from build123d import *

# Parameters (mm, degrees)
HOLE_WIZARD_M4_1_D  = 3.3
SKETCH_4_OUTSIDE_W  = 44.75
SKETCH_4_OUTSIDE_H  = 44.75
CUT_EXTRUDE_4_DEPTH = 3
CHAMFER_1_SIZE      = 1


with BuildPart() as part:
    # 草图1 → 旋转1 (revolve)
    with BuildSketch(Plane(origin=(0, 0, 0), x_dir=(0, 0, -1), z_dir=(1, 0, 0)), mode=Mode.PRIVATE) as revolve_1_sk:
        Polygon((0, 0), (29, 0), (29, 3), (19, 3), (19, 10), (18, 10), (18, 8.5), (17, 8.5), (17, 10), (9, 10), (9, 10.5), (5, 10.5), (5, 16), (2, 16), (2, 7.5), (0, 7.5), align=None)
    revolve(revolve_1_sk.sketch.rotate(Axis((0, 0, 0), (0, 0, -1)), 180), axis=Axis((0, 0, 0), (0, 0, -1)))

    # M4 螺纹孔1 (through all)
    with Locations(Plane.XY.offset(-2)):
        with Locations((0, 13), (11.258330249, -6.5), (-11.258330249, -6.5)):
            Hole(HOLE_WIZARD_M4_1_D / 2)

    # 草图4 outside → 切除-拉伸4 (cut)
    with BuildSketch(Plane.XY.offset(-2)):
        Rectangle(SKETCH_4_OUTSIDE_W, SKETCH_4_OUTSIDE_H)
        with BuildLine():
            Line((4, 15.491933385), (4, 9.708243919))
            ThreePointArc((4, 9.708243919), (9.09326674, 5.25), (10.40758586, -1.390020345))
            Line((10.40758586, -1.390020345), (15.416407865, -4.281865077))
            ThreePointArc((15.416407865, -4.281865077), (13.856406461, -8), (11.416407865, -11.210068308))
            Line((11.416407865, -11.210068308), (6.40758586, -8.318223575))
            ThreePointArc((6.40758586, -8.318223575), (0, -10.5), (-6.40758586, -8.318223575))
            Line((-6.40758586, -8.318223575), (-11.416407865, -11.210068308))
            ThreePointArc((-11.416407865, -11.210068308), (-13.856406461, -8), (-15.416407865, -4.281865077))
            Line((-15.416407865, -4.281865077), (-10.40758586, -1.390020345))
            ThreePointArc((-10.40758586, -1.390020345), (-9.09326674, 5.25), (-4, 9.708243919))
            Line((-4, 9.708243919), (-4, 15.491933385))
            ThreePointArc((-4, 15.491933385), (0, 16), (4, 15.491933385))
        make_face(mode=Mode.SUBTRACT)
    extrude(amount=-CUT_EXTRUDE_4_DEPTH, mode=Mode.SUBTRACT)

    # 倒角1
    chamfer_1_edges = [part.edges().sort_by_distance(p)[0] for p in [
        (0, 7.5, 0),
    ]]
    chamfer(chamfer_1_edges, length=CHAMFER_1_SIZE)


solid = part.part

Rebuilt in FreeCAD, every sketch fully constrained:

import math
import FreeCAD as App
import Part
import Sketcher
from FreeCAD import Vector
Q = App.Units.Quantity


def edges_at(feature, points):
    """Names of the edges that pass closest to the given points."""
    edges = feature.Shape.Edges
    near = lambda p: min(range(len(edges)), key=lambda i: edges[i].distToShape(Part.Vertex(*p))[0])
    return sorted({f"Edge{near(p) + 1}" for p in points})

doc = App.newDocument("Part")
body = doc.addObject("PartDesign::Body", "Body")

# Sketch on YZ plane
sketch1 = doc.addObject("Sketcher::SketchObject", "Sketch")
body.addObject(sketch1)
sketch1.AttachmentSupport = (doc.YZ_Plane, [""])
sketch1.MapMode = "FlatFace"
sketch1.addGeometry(Part.LineSegment(Vector(0, 0, 0), Vector(0, -29, 0)), False)
sketch1.addGeometry(Part.LineSegment(Vector(0, -29, 0), Vector(3, -29, 0)), False)
sketch1.addGeometry(Part.LineSegment(Vector(3, -29, 0), Vector(3, -19, 0)), False)
sketch1.addGeometry(Part.LineSegment(Vector(3, -19, 0), Vector(10, -19, 0)), False)
sketch1.addGeometry(Part.LineSegment(Vector(10, -19, 0), Vector(10, -18, 0)), False)
sketch1.addGeometry(Part.LineSegment(Vector(10, -18, 0), Vector(8.5, -18, 0)), False)
sketch1.addGeometry(Part.LineSegment(Vector(8.5, -18, 0), Vector(8.5, -17, 0)), False)
sketch1.addGeometry(Part.LineSegment(Vector(8.5, -17, 0), Vector(10, -17, 0)), False)
sketch1.addGeometry(Part.LineSegment(Vector(10, -17, 0), Vector(10, -9, 0)), False)
sketch1.addGeometry(Part.LineSegment(Vector(10, -9, 0), Vector(10.5, -9, 0)), False)
sketch1.addGeometry(Part.LineSegment(Vector(10.5, -9, 0), Vector(10.5, -5, 0)), False)
sketch1.addGeometry(Part.LineSegment(Vector(10.5, -5, 0), Vector(16, -5, 0)), False)
sketch1.addGeometry(Part.LineSegment(Vector(16, -5, 0), Vector(16, -2, 0)), False)
sketch1.addGeometry(Part.LineSegment(Vector(16, -2, 0), Vector(7.5, -2, 0)), False)
sketch1.addGeometry(Part.LineSegment(Vector(7.5, -2, 0), Vector(7.5, 0, 0)), False)
sketch1.addGeometry(Part.LineSegment(Vector(7.5, 0, 0), Vector(0, 0, 0)), False)
sketch1.addConstraint(Sketcher.Constraint("Coincident", 0, 2, 1, 1))
sketch1.addConstraint(Sketcher.Constraint("Coincident", 1, 2, 2, 1))
sketch1.addConstraint(Sketcher.Constraint("Coincident", 2, 2, 3, 1))
sketch1.addConstraint(Sketcher.Constraint("Coincident", 3, 2, 4, 1))
sketch1.addConstraint(Sketcher.Constraint("Coincident", 4, 2, 5, 1))
sketch1.addConstraint(Sketcher.Constraint("Coincident", 5, 2, 6, 1))
sketch1.addConstraint(Sketcher.Constraint("Coincident", 6, 2, 7, 1))
sketch1.addConstraint(Sketcher.Constraint("Coincident", 7, 2, 8, 1))
sketch1.addConstraint(Sketcher.Constraint("Coincident", 8, 2, 9, 1))
sketch1.addConstraint(Sketcher.Constraint("Coincident", 9, 2, 10, 1))
sketch1.addConstraint(Sketcher.Constraint("Coincident", 10, 2, 11, 1))
sketch1.addConstraint(Sketcher.Constraint("Coincident", 11, 2, 12, 1))
sketch1.addConstraint(Sketcher.Constraint("Coincident", 12, 2, 13, 1))
sketch1.addConstraint(Sketcher.Constraint("Coincident", 13, 2, 14, 1))
sketch1.addConstraint(Sketcher.Constraint("Coincident", 14, 2, 15, 1))
sketch1.addConstraint(Sketcher.Constraint("Coincident", 15, 2, 0, 1))
sketch1.addConstraint(Sketcher.Constraint("Vertical", 0))
sketch1.addConstraint(Sketcher.Constraint("Horizontal", 1))
sketch1.addConstraint(Sketcher.Constraint("Vertical", 2))
sketch1.addConstraint(Sketcher.Constraint("Horizontal", 3))
sketch1.addConstraint(Sketcher.Constraint("Vertical", 4))
sketch1.addConstraint(Sketcher.Constraint("Horizontal", 5))
sketch1.addConstraint(Sketcher.Constraint("Vertical", 6))
sketch1.addConstraint(Sketcher.Constraint("Horizontal", 7))
sketch1.addConstraint(Sketcher.Constraint("Vertical", 8))
sketch1.addConstraint(Sketcher.Constraint("Horizontal", 9))
sketch1.addConstraint(Sketcher.Constraint("Vertical", 10))
sketch1.addConstraint(Sketcher.Constraint("Horizontal", 11))
sketch1.addConstraint(Sketcher.Constraint("Vertical", 12))
sketch1.addConstraint(Sketcher.Constraint("Horizontal", 13))
sketch1.addConstraint(Sketcher.Constraint("Vertical", 14))
sketch1.addConstraint(Sketcher.Constraint("Horizontal", 15))
sketch1.addConstraint(Sketcher.Constraint("Coincident", 15, 2, -1, 1))
sketch1.addConstraint(Sketcher.Constraint("Vertical", 4, 2, 7, 2))
sketch1.addConstraint(Sketcher.Constraint("Equal", 4, 6))
sketch1.addConstraint(Sketcher.Constraint("Equal", 1, 12))
sketch1.addConstraint(Sketcher.Constraint("DistanceX", 1, 1, 1, 2, 3.0))
sketch1.addConstraint(Sketcher.Constraint("DistanceX", 3, 1, 3, 2, 7.0))
sketch1.addConstraint(Sketcher.Constraint("DistanceY", 0, 2, 0, 1, 29.0))
sketch1.addConstraint(Sketcher.Constraint("DistanceY", 2, 1, 2, 2, 10.0))
sketch1.addConstraint(Sketcher.Constraint("DistanceY", 4, 1, 4, 2, 1.0))
sketch1.addConstraint(Sketcher.Constraint("DistanceY", 8, 1, 8, 2, 8.0))
sketch1.addConstraint(Sketcher.Constraint("DistanceY", 10, 1, 10, 2, 4.0))
sketch1.addConstraint(Sketcher.Constraint("DistanceX", 5, 2, 5, 1, 1.5))
sketch1.addConstraint(Sketcher.Constraint("DistanceX", 9, 1, 9, 2, 0.5))
sketch1.addConstraint(Sketcher.Constraint("DistanceX", 11, 1, 11, 2, 5.5))
sketch1.addConstraint(Sketcher.Constraint("DistanceX", 13, 2, 13, 1, 8.5))
revolution = doc.addObject("PartDesign::Revolution", "Revolution")
body.addObject(revolution)
revolution.Profile = sketch1
revolution.ReferenceAxis = (sketch1, ["V_Axis"])
revolution.Angle = 360

# Sketch on XY plane
sketch2 = doc.addObject("Sketcher::SketchObject", "Sketch001")
body.addObject(sketch2)
sketch2.AttachmentSupport = (doc.XY_Plane, [""])
sketch2.MapMode = "FlatFace"
sketch2.AttachmentOffset = App.Placement(Vector(0, 0, -2), App.Rotation())
sketch2.addGeometry(Part.Circle(Vector(0, 13, 0), Vector(0, 0, 1), 1.6), False)
sketch2.addGeometry(Part.Circle(Vector(11.3, -6.5, 0), Vector(0, 0, 1), 1.6), False)
sketch2.addGeometry(Part.Circle(Vector(-11.3, -6.5, 0), Vector(0, 0, 1), 1.6), False)
sketch2.addConstraint(Sketcher.Constraint("Equal", 0, 1))
sketch2.addConstraint(Sketcher.Constraint("Equal", 1, 2))
sketch2.addConstraint(Sketcher.Constraint("Symmetric", 1, 3, 2, 3, -2))
sketch2.addConstraint(Sketcher.Constraint("PointOnObject", 0, 3, -2))
sketch2.addConstraint(Sketcher.Constraint("Diameter", 0, 3.3))
sketch2.addConstraint(Sketcher.Constraint("DistanceY", -1, 1, 0, 3, 13.0))
sketch2.addConstraint(Sketcher.Constraint("DistanceY", 1, 3, -1, 1, 6.5))
sketch2.addConstraint(Sketcher.Constraint("DistanceX", -1, 1, 1, 3, 11.25833))
doc.recompute()
hole = doc.addObject("PartDesign::Hole", "Hole")
body.addObject(hole)
hole.Profile = sketch2
hole.ThreadType = "None"
hole.Diameter = 3.3
hole.DepthType = "ThroughAll"

# Sketch on XY plane
sketch3 = doc.addObject("Sketcher::SketchObject", "Sketch002")
body.addObject(sketch3)
sketch3.AttachmentSupport = (doc.XY_Plane, [""])
sketch3.MapMode = "FlatFace"
sketch3.AttachmentOffset = App.Placement(Vector(0, 0, -2), App.Rotation())
sketch3.addGeometry(Part.LineSegment(Vector(-22, 22, 0), Vector(-22, -22, 0)), False)
sketch3.addGeometry(Part.LineSegment(Vector(-22, -22, 0), Vector(22, -22, 0)), False)
sketch3.addGeometry(Part.LineSegment(Vector(22, -22, 0), Vector(22, 22, 0)), False)
sketch3.addGeometry(Part.LineSegment(Vector(22, 22, 0), Vector(-22, 22, 0)), False)
sketch3.addGeometry(Part.ArcOfCircle(Part.Circle(Vector(0, 0, 0), Vector(0, 0, 1), 16), math.radians(76), math.radians(104)), False)
sketch3.addGeometry(Part.LineSegment(Vector(4, 15, 0), Vector(4, 10, 0)), False)
sketch3.addGeometry(Part.ArcOfCircle(Part.Circle(Vector(0, 0, 0), Vector(0, 0, 1), 10), math.radians(-8), math.radians(68)), False)
sketch3.addGeometry(Part.LineSegment(Vector(10, -1, 0), Vector(15, -4, 0)), False)
sketch3.addGeometry(Part.ArcOfCircle(Part.Circle(Vector(0, 0, 0), Vector(0, 0, 1), 16), math.radians(-44), math.radians(-16)), False)
sketch3.addGeometry(Part.LineSegment(Vector(11, -11, 0), Vector(6, -8, 0)), False)
sketch3.addGeometry(Part.ArcOfCircle(Part.Circle(Vector(0, 0, 0), Vector(0, 0, 1), 10), math.radians(-128), math.radians(-52)), False)
sketch3.addGeometry(Part.LineSegment(Vector(-6, -8, 0), Vector(-11, -11, 0)), False)
sketch3.addGeometry(Part.ArcOfCircle(Part.Circle(Vector(0, 0, 0), Vector(0, 0, 1), 16), math.radians(-164), math.radians(-136)), False)
sketch3.addGeometry(Part.LineSegment(Vector(-15, -4, 0), Vector(-10, -1, 0)), False)
sketch3.addGeometry(Part.ArcOfCircle(Part.Circle(Vector(0, 0, 0), Vector(0, 0, 1), 10), math.radians(112), math.radians(188)), False)
sketch3.addGeometry(Part.LineSegment(Vector(-4, 10, 0), Vector(-4, 15, 0)), False)
sketch3.addConstraint(Sketcher.Constraint("Coincident", 0, 2, 1, 1))
sketch3.addConstraint(Sketcher.Constraint("Coincident", 1, 2, 2, 1))
sketch3.addConstraint(Sketcher.Constraint("Coincident", 2, 2, 3, 1))
sketch3.addConstraint(Sketcher.Constraint("Coincident", 3, 2, 0, 1))
sketch3.addConstraint(Sketcher.Constraint("Coincident", 4, 1, 5, 1))
sketch3.addConstraint(Sketcher.Constraint("Coincident", 5, 2, 6, 2))
sketch3.addConstraint(Sketcher.Constraint("Coincident", 6, 1, 7, 1))
sketch3.addConstraint(Sketcher.Constraint("Coincident", 7, 2, 8, 2))
sketch3.addConstraint(Sketcher.Constraint("Coincident", 8, 1, 9, 1))
sketch3.addConstraint(Sketcher.Constraint("Coincident", 9, 2, 10, 2))
sketch3.addConstraint(Sketcher.Constraint("Coincident", 10, 1, 11, 1))
sketch3.addConstraint(Sketcher.Constraint("Coincident", 11, 2, 12, 2))
sketch3.addConstraint(Sketcher.Constraint("Coincident", 12, 1, 13, 1))
sketch3.addConstraint(Sketcher.Constraint("Coincident", 13, 2, 14, 2))
sketch3.addConstraint(Sketcher.Constraint("Coincident", 14, 1, 15, 1))
sketch3.addConstraint(Sketcher.Constraint("Coincident", 15, 2, 4, 2))
sketch3.addConstraint(Sketcher.Constraint("Vertical", 0))
sketch3.addConstraint(Sketcher.Constraint("Horizontal", 1))
sketch3.addConstraint(Sketcher.Constraint("Vertical", 2))
sketch3.addConstraint(Sketcher.Constraint("Horizontal", 3))
sketch3.addConstraint(Sketcher.Constraint("Vertical", 5))
sketch3.addConstraint(Sketcher.Constraint("Vertical", 15))
sketch3.addConstraint(Sketcher.Constraint("Coincident", 4, 3, -1, 1))
sketch3.addConstraint(Sketcher.Constraint("Coincident", 6, 3, -1, 1))
sketch3.addConstraint(Sketcher.Constraint("Coincident", 8, 3, -1, 1))
sketch3.addConstraint(Sketcher.Constraint("Coincident", 10, 3, -1, 1))
sketch3.addConstraint(Sketcher.Constraint("Coincident", 12, 3, -1, 1))
sketch3.addConstraint(Sketcher.Constraint("Coincident", 14, 3, -1, 1))
sketch3.addConstraint(Sketcher.Constraint("Equal", 4, 8))
sketch3.addConstraint(Sketcher.Constraint("Equal", 6, 10))
sketch3.addConstraint(Sketcher.Constraint("Equal", 8, 12))
sketch3.addConstraint(Sketcher.Constraint("Equal", 10, 14))
sketch3.addConstraint(Sketcher.Constraint("Symmetric", 0, 2, 2, 2, -1, 1))
sketch3.addConstraint(Sketcher.Constraint("Parallel", 7, 9))
sketch3.addConstraint(Sketcher.Constraint("Parallel", 11, 13))
sketch3.addConstraint(Sketcher.Constraint("Horizontal", 9, 2, 10, 1))
sketch3.addConstraint(Sketcher.Constraint("Horizontal", 8, 1, 11, 2))
sketch3.addConstraint(Sketcher.Constraint("Horizontal", 7, 2, 12, 1))
sketch3.addConstraint(Sketcher.Constraint("Horizontal", 5, 2, 14, 1))
sketch3.addConstraint(Sketcher.Constraint("Equal", 3, 0))
sketch3.addConstraint(Sketcher.Constraint("Equal", 7, 9))
sketch3.addConstraint(Sketcher.Constraint("Radius", 4, 16.0))
sketch3.addConstraint(Sketcher.Constraint("Radius", 6, 10.5))
sketch3.addConstraint(Sketcher.Constraint("Angle", 7, Q("-30 deg")))
sketch3.addConstraint(Sketcher.Constraint("DistanceX", -1, 1, 4, 1, 4.0))
sketch3.addConstraint(Sketcher.Constraint("DistanceX", 8, 1, 7, 2, 4.0))
sketch3.addConstraint(Sketcher.Constraint("DistanceX", 1, 1, 1, 2, 44.75))
pocket1 = doc.addObject("PartDesign::Pocket", "Pocket")
body.addObject(pocket1)
pocket1.Profile = sketch3
pocket1.Length = 3
doc.recompute()

chamfer = doc.addObject("PartDesign::Chamfer", "Chamfer")
body.addObject(chamfer)
chamfer.Base = (pocket1, edges_at(pocket1, [(0, 7.5, 0)]))
chamfer.Size = 1

doc.recompute()
